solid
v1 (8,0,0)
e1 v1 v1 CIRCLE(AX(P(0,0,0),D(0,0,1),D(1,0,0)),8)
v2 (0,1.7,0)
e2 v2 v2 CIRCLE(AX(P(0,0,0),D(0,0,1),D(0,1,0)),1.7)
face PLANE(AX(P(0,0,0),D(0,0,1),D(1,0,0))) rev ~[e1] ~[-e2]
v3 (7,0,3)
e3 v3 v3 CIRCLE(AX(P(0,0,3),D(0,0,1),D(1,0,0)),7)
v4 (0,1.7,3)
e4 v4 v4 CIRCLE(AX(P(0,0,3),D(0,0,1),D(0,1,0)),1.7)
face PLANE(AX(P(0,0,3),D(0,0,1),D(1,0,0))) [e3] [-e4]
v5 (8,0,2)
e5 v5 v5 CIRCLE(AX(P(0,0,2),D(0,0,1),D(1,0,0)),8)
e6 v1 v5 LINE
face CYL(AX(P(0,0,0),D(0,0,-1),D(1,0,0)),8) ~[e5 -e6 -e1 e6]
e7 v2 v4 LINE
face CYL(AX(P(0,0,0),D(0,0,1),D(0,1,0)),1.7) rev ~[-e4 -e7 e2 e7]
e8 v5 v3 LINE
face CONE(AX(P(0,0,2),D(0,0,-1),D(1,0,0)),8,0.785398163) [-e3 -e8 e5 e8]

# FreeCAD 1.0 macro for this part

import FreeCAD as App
import Part
import Sketcher


def edges_at(feature, points):
    """Names of the edges that pass closest to the given points."""
    edges = feature.Shape.Edges
    near = lambda p: min(range(len(edges)), key=lambda i: edges[i].distToShape(Part.Vertex(*p))[0])
    return sorted({f"Edge{near(p) + 1}" for p in points})

doc = App.newDocument("Part")
body = doc.addObject("PartDesign::Body", "Body")

sketch1 = body.newObject("Sketcher::SketchObject", "Sketch")
sketch1.AttachmentSupport = (doc.getObject("XY_Plane"), [""])
sketch1.MapMode = "FlatFace"
sketch1.addGeometry(Part.Circle(App.Vector(0, 0, 0), App.Vector(0, 0, 1), 8), False)
sketch1.addConstraint([
    Sketcher.Constraint("Coincident", 0, 3, -1, 1),
    Sketcher.Constraint("Diameter", 0, 16.0),
])
pad1 = body.newObject("PartDesign::Pad", "Pad")
pad1.Profile = sketch1
pad1.Length = 3
doc.recompute()

chamfer = body.newObject("PartDesign::Chamfer", "Chamfer")
chamfer.Base = (pad1, edges_at(pad1, [(-8, 0, 3)]))
chamfer.Size = 1

sketch2 = body.newObject("Sketcher::SketchObject", "Sketch001")
sketch2.AttachmentSupport = (doc.getObject("XY_Plane"), [""])
sketch2.MapMode = "FlatFace"
sketch2.addGeometry(Part.Circle(App.Vector(0, 0, 0), App.Vector(0, 0, 1), 1.7), False)
sketch2.addConstraint([
    Sketcher.Constraint("Coincident", 0, 3, -1, 1),
    Sketcher.Constraint("Diameter", 0, 3.4),
])
doc.recompute()
hole = body.newObject("PartDesign::Hole", "Hole")
hole.Profile = sketch2
hole.ThreadType = "None"
hole.Diameter = 3.4
hole.DepthType = "Dimension"
hole.Depth = 8
hole.DrillPoint = "Angled"
hole.DrillPointAngle = 118
hole.Reversed = True

doc.recompute()
